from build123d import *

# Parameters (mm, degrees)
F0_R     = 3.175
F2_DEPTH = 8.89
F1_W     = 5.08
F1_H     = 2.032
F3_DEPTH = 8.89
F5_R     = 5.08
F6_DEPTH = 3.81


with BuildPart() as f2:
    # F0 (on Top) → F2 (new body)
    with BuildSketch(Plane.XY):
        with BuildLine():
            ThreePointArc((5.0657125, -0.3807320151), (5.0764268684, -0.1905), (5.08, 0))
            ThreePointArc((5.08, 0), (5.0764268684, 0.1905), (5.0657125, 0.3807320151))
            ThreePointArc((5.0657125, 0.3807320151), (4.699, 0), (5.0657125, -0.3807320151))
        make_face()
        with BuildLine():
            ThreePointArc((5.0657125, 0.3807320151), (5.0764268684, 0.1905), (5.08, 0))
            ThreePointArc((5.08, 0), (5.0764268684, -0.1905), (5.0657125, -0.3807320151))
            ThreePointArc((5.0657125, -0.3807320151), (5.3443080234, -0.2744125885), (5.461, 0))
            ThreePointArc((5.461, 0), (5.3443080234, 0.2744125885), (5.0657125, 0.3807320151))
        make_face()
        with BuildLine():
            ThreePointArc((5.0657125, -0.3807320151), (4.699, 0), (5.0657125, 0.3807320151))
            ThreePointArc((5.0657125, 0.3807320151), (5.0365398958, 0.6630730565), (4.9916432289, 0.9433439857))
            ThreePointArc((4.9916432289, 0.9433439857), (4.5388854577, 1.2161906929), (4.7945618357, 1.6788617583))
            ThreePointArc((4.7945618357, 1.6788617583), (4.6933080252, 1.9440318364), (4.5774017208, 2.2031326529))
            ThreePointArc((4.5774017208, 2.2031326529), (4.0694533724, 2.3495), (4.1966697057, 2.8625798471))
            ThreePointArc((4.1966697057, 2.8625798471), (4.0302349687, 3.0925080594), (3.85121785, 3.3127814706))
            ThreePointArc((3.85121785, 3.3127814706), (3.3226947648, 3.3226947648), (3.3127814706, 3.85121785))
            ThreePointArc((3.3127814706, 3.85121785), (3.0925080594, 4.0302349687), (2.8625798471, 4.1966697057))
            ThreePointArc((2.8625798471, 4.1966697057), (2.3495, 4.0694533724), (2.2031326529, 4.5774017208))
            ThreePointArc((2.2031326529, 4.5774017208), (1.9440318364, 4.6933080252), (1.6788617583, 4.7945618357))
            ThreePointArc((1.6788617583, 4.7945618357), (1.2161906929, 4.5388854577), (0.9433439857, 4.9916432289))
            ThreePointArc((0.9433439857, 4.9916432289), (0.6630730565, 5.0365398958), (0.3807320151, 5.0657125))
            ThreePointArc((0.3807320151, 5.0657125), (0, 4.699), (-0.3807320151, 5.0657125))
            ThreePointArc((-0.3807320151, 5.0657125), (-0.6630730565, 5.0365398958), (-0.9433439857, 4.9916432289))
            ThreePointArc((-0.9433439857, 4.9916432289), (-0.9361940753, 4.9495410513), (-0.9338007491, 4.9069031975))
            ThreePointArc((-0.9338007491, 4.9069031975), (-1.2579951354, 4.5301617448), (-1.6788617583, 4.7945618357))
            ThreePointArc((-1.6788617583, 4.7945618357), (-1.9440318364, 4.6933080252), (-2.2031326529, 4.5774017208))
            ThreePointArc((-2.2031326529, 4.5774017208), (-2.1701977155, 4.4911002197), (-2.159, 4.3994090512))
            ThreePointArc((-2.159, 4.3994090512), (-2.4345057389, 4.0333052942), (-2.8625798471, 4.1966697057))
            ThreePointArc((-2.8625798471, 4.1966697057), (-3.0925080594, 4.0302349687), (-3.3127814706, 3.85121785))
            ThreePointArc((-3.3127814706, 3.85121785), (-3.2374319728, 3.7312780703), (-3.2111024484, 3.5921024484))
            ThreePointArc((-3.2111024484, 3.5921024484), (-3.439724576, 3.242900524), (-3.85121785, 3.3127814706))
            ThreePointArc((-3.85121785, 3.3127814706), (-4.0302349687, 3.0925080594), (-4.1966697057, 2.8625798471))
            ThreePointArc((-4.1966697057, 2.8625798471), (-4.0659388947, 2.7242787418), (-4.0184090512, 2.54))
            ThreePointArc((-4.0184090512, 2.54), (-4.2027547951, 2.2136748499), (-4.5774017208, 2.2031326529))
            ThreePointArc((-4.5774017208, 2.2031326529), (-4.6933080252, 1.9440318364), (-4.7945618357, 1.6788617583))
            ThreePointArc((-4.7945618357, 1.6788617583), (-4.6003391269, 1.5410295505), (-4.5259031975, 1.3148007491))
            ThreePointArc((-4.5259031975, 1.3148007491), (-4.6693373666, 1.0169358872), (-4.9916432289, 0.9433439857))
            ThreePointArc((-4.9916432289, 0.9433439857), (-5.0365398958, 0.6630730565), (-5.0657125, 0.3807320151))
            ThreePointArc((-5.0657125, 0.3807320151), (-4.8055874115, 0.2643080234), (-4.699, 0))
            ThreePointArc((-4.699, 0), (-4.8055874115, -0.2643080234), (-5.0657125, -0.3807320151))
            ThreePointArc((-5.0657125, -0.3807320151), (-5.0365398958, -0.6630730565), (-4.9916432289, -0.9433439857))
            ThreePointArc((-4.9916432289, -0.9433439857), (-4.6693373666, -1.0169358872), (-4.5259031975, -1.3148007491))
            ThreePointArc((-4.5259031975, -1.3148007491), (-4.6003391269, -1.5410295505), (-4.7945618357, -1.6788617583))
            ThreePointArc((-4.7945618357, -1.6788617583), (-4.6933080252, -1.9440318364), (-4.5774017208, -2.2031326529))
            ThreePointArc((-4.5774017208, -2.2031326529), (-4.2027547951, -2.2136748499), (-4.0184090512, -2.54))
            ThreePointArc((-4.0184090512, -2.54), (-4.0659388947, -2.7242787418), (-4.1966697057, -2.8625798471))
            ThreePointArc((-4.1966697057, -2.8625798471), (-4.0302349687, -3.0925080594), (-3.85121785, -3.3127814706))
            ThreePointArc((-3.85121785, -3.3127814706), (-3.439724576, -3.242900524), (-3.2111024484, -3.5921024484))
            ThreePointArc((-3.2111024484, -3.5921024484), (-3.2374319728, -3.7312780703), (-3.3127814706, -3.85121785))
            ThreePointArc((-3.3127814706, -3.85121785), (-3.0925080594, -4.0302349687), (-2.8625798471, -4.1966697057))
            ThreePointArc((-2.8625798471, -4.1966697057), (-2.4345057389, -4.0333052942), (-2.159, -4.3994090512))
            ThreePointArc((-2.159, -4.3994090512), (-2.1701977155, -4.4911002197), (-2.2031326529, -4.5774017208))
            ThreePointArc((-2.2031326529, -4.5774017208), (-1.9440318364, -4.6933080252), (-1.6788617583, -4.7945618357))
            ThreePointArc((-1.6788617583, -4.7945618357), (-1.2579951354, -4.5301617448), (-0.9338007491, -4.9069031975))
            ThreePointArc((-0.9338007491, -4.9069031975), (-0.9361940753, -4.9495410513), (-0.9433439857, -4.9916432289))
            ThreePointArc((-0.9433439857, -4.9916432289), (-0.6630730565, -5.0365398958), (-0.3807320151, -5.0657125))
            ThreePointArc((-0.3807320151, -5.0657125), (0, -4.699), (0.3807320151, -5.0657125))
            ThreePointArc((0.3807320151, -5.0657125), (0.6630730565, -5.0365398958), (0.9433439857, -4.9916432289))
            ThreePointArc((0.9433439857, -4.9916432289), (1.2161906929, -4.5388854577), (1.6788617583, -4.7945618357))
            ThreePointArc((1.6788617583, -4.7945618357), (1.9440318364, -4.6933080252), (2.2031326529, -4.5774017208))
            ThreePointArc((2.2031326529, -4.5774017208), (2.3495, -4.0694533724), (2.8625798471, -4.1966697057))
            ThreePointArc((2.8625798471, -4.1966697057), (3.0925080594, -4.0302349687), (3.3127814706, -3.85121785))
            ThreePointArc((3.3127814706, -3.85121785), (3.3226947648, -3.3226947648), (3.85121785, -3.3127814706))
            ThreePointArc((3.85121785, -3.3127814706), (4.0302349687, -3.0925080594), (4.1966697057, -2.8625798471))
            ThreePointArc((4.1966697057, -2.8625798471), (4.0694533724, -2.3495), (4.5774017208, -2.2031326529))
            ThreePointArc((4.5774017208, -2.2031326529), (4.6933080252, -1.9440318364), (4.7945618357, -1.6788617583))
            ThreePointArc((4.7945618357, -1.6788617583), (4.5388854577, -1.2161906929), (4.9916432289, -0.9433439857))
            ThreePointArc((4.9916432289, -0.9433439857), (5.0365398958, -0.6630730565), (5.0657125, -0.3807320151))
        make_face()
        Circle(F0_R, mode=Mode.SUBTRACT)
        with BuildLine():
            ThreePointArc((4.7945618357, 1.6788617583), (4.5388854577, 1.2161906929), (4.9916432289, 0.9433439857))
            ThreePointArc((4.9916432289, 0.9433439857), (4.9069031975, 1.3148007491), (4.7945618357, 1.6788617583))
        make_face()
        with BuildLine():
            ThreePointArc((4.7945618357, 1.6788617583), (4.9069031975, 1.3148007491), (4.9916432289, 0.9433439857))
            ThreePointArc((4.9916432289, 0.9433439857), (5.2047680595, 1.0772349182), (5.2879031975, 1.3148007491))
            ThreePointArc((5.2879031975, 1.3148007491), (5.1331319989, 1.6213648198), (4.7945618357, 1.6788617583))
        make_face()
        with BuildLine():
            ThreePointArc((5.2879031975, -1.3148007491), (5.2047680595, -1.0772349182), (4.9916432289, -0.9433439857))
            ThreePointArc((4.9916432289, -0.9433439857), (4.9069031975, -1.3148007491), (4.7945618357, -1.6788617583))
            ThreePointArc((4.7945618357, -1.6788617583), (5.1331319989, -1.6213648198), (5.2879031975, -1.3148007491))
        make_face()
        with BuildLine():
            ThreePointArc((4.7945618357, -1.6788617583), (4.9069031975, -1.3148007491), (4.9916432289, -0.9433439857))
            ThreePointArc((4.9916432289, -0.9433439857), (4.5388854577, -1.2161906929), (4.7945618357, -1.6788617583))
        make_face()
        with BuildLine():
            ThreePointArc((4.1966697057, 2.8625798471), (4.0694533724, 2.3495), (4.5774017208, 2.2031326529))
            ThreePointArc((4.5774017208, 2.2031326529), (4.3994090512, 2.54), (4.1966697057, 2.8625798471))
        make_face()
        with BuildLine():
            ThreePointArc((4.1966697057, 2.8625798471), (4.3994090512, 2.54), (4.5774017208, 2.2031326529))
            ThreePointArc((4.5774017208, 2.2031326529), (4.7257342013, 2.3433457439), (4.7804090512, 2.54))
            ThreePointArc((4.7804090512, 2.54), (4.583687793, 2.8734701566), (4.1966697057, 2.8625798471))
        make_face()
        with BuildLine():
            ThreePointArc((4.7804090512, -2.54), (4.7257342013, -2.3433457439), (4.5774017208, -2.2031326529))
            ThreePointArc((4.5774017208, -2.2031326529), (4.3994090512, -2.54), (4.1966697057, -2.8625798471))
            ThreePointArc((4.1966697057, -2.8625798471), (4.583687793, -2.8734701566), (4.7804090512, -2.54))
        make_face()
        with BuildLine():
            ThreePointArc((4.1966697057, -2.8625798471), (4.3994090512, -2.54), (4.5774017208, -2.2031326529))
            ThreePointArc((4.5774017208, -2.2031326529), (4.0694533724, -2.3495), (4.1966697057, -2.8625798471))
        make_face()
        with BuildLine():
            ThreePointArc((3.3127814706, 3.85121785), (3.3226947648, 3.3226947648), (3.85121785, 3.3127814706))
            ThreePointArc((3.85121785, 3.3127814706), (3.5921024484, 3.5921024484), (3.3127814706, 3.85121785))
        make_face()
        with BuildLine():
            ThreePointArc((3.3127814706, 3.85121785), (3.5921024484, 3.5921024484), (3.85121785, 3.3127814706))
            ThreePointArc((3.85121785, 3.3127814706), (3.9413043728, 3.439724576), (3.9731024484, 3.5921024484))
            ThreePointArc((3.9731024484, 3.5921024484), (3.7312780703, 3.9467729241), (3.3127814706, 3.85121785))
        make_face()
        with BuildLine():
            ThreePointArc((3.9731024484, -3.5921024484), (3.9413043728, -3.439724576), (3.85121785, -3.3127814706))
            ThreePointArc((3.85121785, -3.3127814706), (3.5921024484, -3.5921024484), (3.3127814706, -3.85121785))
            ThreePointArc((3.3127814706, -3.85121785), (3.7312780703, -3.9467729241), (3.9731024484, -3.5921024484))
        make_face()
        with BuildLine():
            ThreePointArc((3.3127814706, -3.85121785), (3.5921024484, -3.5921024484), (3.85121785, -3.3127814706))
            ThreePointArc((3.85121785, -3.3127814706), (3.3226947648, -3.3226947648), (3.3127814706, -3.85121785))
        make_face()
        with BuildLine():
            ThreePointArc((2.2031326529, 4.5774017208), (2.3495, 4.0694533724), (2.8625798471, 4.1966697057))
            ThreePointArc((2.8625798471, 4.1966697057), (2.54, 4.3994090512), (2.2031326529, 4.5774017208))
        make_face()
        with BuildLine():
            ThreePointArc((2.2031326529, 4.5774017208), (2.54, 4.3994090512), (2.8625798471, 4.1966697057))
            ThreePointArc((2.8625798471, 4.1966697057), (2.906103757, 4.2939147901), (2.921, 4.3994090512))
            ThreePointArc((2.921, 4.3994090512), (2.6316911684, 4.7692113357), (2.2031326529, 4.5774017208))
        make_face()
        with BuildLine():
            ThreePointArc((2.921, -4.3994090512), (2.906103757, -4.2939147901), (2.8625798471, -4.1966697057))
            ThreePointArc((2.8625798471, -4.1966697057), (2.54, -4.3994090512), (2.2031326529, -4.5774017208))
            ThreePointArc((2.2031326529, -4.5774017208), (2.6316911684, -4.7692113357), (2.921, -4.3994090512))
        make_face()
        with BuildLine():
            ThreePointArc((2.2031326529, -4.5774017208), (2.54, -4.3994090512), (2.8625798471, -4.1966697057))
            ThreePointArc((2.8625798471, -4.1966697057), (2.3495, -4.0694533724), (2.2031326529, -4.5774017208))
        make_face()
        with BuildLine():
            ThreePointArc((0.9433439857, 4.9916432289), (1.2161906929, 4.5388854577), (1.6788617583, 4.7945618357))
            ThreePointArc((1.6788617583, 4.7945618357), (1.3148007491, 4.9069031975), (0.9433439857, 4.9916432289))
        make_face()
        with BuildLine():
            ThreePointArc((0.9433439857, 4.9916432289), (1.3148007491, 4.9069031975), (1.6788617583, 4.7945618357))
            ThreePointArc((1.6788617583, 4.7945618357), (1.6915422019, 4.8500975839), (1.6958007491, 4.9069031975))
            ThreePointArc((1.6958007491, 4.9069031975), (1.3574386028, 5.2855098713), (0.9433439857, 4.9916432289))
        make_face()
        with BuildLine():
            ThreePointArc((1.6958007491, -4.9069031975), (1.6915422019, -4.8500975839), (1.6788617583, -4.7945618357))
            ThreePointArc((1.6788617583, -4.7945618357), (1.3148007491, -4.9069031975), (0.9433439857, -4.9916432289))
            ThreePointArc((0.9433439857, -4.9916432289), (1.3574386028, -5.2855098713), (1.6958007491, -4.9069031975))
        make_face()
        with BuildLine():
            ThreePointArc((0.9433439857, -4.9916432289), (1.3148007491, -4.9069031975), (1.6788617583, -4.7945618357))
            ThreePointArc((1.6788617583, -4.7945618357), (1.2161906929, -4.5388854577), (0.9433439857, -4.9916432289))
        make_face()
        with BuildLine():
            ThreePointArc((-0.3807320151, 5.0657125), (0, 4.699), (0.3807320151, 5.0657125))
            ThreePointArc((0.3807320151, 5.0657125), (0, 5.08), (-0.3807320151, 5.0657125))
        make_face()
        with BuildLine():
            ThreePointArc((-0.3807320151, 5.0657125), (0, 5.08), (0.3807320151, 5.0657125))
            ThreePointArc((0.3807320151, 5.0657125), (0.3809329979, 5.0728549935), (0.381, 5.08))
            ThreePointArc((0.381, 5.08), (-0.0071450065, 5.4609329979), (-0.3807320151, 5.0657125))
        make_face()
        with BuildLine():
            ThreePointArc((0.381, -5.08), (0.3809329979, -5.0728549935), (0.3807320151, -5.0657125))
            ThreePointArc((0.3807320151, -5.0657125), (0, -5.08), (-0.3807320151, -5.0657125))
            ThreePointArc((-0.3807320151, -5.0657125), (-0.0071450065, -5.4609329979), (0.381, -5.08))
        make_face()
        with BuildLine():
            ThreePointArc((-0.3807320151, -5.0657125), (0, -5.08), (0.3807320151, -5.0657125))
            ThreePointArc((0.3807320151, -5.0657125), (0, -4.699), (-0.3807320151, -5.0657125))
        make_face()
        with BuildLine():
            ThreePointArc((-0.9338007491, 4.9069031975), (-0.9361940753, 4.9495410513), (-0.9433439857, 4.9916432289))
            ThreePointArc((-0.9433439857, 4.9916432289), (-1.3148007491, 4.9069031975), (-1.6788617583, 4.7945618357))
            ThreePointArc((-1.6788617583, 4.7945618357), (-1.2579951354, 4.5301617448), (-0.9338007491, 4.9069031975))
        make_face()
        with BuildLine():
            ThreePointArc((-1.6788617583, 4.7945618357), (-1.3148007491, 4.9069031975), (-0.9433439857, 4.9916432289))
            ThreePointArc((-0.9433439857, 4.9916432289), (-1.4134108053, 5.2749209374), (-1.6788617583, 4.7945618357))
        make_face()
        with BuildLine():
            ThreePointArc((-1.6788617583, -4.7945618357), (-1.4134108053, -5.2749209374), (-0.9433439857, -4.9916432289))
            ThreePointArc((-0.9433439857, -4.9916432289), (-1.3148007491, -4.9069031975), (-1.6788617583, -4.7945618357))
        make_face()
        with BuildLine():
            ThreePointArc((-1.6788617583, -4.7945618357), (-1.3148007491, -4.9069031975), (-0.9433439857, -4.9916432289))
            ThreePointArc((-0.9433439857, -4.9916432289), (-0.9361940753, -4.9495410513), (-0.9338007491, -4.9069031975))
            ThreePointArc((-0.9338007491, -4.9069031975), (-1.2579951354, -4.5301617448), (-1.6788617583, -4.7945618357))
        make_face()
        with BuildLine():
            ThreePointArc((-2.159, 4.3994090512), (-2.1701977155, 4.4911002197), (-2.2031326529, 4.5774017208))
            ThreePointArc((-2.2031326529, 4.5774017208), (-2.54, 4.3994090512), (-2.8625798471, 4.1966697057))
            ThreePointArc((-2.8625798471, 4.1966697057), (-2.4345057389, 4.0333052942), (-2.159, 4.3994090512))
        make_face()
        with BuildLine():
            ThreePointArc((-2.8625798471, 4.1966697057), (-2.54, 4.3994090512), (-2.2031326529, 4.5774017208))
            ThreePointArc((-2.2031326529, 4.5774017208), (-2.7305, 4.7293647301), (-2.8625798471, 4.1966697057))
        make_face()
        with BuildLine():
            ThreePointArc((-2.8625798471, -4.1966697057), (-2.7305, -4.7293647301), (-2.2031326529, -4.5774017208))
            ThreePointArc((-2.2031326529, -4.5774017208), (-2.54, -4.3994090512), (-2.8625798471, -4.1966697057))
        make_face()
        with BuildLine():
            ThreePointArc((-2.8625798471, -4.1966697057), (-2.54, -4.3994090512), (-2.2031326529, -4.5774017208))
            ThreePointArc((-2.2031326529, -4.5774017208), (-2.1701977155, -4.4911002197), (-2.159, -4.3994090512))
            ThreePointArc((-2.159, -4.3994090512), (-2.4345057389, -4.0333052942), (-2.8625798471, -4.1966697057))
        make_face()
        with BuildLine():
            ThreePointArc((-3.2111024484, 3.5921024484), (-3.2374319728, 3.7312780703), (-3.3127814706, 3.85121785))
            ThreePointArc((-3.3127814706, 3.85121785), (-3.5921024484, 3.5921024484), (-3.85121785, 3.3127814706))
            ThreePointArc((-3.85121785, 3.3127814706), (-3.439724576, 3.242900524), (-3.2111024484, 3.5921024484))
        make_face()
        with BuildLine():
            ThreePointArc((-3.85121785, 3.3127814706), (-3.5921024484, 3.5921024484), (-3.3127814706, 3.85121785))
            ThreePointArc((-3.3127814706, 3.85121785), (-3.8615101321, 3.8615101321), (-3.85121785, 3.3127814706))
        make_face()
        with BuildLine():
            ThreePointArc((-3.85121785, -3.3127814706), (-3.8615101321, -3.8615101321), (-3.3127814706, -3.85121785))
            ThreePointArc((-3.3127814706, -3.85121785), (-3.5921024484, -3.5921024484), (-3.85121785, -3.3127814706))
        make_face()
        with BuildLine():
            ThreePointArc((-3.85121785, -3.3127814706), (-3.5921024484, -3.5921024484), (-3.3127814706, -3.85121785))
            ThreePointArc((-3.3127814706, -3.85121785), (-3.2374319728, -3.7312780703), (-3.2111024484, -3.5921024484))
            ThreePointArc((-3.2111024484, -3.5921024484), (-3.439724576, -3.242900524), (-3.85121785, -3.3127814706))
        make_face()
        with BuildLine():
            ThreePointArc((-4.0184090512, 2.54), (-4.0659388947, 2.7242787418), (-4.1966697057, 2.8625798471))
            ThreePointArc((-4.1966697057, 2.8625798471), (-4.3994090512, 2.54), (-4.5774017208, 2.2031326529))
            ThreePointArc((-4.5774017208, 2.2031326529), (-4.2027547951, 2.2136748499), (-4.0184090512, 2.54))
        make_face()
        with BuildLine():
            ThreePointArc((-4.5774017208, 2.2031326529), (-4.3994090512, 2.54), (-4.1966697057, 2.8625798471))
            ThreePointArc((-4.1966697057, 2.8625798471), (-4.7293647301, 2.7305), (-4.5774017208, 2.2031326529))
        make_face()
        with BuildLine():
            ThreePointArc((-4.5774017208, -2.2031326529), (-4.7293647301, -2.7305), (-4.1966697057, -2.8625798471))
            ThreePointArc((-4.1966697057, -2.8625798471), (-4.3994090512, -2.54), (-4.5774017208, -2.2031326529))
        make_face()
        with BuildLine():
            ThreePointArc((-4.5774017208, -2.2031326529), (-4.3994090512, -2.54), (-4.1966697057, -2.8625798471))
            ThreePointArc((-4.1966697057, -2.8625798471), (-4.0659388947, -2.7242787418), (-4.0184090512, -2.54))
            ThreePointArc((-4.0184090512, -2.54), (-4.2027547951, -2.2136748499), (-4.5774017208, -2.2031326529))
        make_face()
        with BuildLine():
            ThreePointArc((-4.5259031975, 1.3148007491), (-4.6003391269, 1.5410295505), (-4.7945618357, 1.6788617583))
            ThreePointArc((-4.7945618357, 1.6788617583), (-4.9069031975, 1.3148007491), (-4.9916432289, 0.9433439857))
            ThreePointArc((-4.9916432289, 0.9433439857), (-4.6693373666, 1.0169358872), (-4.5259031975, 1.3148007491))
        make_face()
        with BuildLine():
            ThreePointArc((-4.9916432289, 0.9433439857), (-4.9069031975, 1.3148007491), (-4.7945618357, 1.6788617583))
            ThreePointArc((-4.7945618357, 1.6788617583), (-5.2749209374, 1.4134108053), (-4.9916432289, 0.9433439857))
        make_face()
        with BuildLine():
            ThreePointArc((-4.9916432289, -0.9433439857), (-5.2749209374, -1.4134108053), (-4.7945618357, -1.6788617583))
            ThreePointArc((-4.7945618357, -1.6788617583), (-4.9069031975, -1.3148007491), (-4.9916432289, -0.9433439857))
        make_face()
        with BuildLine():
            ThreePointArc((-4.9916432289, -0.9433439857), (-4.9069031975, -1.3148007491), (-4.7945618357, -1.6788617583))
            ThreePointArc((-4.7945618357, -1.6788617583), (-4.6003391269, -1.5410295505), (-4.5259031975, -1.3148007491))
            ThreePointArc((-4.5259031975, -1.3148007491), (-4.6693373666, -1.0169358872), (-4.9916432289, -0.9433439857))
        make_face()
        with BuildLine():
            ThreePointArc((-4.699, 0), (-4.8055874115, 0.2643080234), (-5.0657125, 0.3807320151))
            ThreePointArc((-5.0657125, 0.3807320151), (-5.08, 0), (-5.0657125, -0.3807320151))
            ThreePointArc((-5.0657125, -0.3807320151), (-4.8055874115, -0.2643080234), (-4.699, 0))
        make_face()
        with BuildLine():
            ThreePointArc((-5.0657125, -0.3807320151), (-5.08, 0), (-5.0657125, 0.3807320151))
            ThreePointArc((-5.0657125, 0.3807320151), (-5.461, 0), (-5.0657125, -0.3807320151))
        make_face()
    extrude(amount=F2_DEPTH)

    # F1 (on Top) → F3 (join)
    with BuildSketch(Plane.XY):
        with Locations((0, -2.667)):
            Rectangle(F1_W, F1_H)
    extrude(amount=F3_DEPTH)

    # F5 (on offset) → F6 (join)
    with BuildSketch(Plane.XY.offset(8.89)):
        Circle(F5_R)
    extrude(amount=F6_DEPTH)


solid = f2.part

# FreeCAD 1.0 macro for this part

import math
import FreeCAD as App
import Part
import Sketcher
Q = App.Units.Quantity

doc = App.newDocument("Part")
params = doc.addObject("Spreadsheet::Sheet", "Params")
for row, (alias, value) in enumerate([
    ("sketch1_radius", "0.2 in"),
    ("sketch1_diameter", "0.25 in"),
    ("sketch1_radius2", "0.015 in"),
    ("pad1_length", "0.35 in"),
    ("sketch2_width", "0.2 in"),
    ("sketch2_height", "0.08 in"),
    ("pad2_length", "0.35 in"),
    ("sketch3_diameter", "0.4 in"),
    ("pad3_length", "0.15 in"),
], start=1):
    params.set(f"A{row}", alias)
    params.set(f"B{row}", "=" + value)
    params.setAlias(f"B{row}", alias)

body = doc.addObject("PartDesign::Body", "Body")

# Sketch on XY plane
sketch1 = body.newObject("Sketcher::SketchObject", "Sketch")
sketch1.AttachmentSupport = (doc.getObject("XY_Plane"), [""])
sketch1.MapMode = "FlatFace"
sketch1.addGeometry([
    Part.ArcOfCircle(Part.Circle(App.Vector(5.08, 0, 0), App.Vector(0, 0, 1), 0.381), math.radians(-92.149096), math.radians(0)),  # 0
    Part.ArcOfCircle(Part.Circle(App.Vector(5.08, 0, 0), App.Vector(0, 0, 1), 0.381), math.radians(0), math.radians(92.149096)),  # 1
    Part.ArcOfCircle(Part.Circle(App.Vector(0, 0, 0), App.Vector(0, 0, 1), 5.08), math.radians(4.298191), math.radians(10.701809)),  # 2
    Part.ArcOfCircle(Part.Circle(App.Vector(4.906903, 1.314801, 0), App.Vector(0, 0, 1), 0.381), math.radians(-77.149096), math.radians(0)),  # 3
    Part.ArcOfCircle(Part.Circle(App.Vector(4.906903, 1.314801, 0), App.Vector(0, 0, 1), 0.381), math.radians(0), math.radians(107.149096)),  # 4
    Part.ArcOfCircle(Part.Circle(App.Vector(0, 0, 0), App.Vector(0, 0, 1), 5.08), math.radians(19.298191), math.radians(25.701809)),  # 5
    Part.ArcOfCircle(Part.Circle(App.Vector(4.399409, 2.54, 0), App.Vector(0, 0, 1), 0.381), math.radians(-62.149096), math.radians(0)),  # 6
    Part.ArcOfCircle(Part.Circle(App.Vector(4.399409, 2.54, 0), App.Vector(0, 0, 1), 0.381), math.radians(0), math.radians(122.149096)),  # 7
    Part.ArcOfCircle(Part.Circle(App.Vector(0, 0, 0), App.Vector(0, 0, 1), 5.08), math.radians(34.298191), math.radians(40.701809)),  # 8
    Part.ArcOfCircle(Part.Circle(App.Vector(3.592102, 3.592102, 0), App.Vector(0, 0, 1), 0.381), math.radians(-47.149096), math.radians(0)),  # 9
    Part.ArcOfCircle(Part.Circle(App.Vector(3.592102, 3.592102, 0), App.Vector(0, 0, 1), 0.381), math.radians(0), math.radians(137.149096)),  # 10
    Part.ArcOfCircle(Part.Circle(App.Vector(0, 0, 0), App.Vector(0, 0, 1), 5.08), math.radians(49.298191), math.radians(55.701809)),  # 11
    Part.ArcOfCircle(Part.Circle(App.Vector(2.54, 4.399409, 0), App.Vector(0, 0, 1), 0.381), math.radians(-32.149096), math.radians(0)),  # 12
    Part.ArcOfCircle(Part.Circle(App.Vector(2.54, 4.399409, 0), App.Vector(0, 0, 1), 0.381), math.radians(0), math.radians(152.149096)),  # 13
    Part.ArcOfCircle(Part.Circle(App.Vector(0, 0, 0), App.Vector(0, 0, 1), 5.08), math.radians(64.298191), math.radians(70.701809)),  # 14
    Part.ArcOfCircle(Part.Circle(App.Vector(1.314801, 4.906903, 0), App.Vector(0, 0, 1), 0.381), math.radians(-17.149096), math.radians(0)),  # 15
    Part.ArcOfCircle(Part.Circle(App.Vector(1.314801, 4.906903, 0), App.Vector(0, 0, 1), 0.381), math.radians(0), math.radians(167.149096)),  # 16
    Part.ArcOfCircle(Part.Circle(App.Vector(0, 0, 0), App.Vector(0, 0, 1), 5.08), math.radians(79.298191), math.radians(85.701809)),  # 17
    Part.ArcOfCircle(Part.Circle(App.Vector(0, 5.08, 0), App.Vector(0, 0, 1), 0.381), math.radians(-2.149096), math.radians(0)),  # 18
    Part.ArcOfCircle(Part.Circle(App.Vector(0, 5.08, 0), App.Vector(0, 0, 1), 0.381), math.radians(0), math.radians(182.149096)),  # 19
    Part.ArcOfCircle(Part.Circle(App.Vector(0, 0, 0), App.Vector(0, 0, 1), 5.08), math.radians(94.298191), math.radians(100.701809)),  # 20
    Part.ArcOfCircle(Part.Circle(App.Vector(-1.314801, 4.906903, 0), App.Vector(0, 0, 1), 0.381), math.radians(12.850904), math.radians(197.149096)),  # 21
    Part.ArcOfCircle(Part.Circle(App.Vector(0, 0, 0), App.Vector(0, 0, 1), 5.08), math.radians(109.298191), math.radians(115.701809)),  # 22
    Part.ArcOfCircle(Part.Circle(App.Vector(-2.54, 4.399409, 0), App.Vector(0, 0, 1), 0.381), math.radians(27.850904), math.radians(212.149096)),  # 23
    Part.ArcOfCircle(Part.Circle(App.Vector(0, 0, 0), App.Vector(0, 0, 1), 5.08), math.radians(124.298191), math.radians(130.701809)),  # 24
    Part.ArcOfCircle(Part.Circle(App.Vector(-3.592102, 3.592102, 0), App.Vector(0, 0, 1), 0.381), math.radians(42.850905), math.radians(227.149095)),  # 25
    Part.ArcOfCircle(Part.Circle(App.Vector(0, 0, 0), App.Vector(0, 0, 1), 5.08), math.radians(139.298191), math.radians(145.701809)),  # 26
    Part.ArcOfCircle(Part.Circle(App.Vector(-4.399409, 2.54, 0), App.Vector(0, 0, 1), 0.381), math.radians(57.850904), math.radians(242.149096)),  # 27
    Part.ArcOfCircle(Part.Circle(App.Vector(0, 0, 0), App.Vector(0, 0, 1), 5.08), math.radians(154.298191), math.radians(160.701809)),  # 28
    Part.ArcOfCircle(Part.Circle(App.Vector(-4.906903, 1.314801, 0), App.Vector(0, 0, 1), 0.381), math.radians(72.850904), math.radians(257.149096)),  # 29
    Part.ArcOfCircle(Part.Circle(App.Vector(0, 0, 0), App.Vector(0, 0, 1), 5.08), math.radians(169.298191), math.radians(175.701809)),  # 30
    Part.ArcOfCircle(Part.Circle(App.Vector(-5.08, 0, 0), App.Vector(0, 0, 1), 0.381), math.radians(87.850904), math.radians(272.149096)),  # 31
    Part.ArcOfCircle(Part.Circle(App.Vector(0, 0, 0), App.Vector(0, 0, 1), 5.08), math.radians(-175.701809), math.radians(-169.298191)),  # 32
    Part.ArcOfCircle(Part.Circle(App.Vector(-4.906903, -1.314801, 0), App.Vector(0, 0, 1), 0.381), math.radians(102.850904), math.radians(287.149096)),  # 33
    Part.ArcOfCircle(Part.Circle(App.Vector(0, 0, 0), App.Vector(0, 0, 1), 5.08), math.radians(-160.701809), math.radians(-154.298191)),  # 34
    Part.ArcOfCircle(Part.Circle(App.Vector(-4.399409, -2.54, 0), App.Vector(0, 0, 1), 0.381), math.radians(117.850904), math.radians(302.149096)),  # 35
    Part.ArcOfCircle(Part.Circle(App.Vector(0, 0, 0), App.Vector(0, 0, 1), 5.08), math.radians(-145.701809), math.radians(-139.298191)),  # 36
    Part.ArcOfCircle(Part.Circle(App.Vector(-3.592102, -3.592102, 0), App.Vector(0, 0, 1), 0.381), math.radians(132.850905), math.radians(317.149095)),  # 37
    Part.ArcOfCircle(Part.Circle(App.Vector(0, 0, 0), App.Vector(0, 0, 1), 5.08), math.radians(-130.701809), math.radians(-124.298191)),  # 38
    Part.ArcOfCircle(Part.Circle(App.Vector(-2.54, -4.399409, 0), App.Vector(0, 0, 1), 0.381), math.radians(147.850904), math.radians(332.149096)),  # 39
    Part.ArcOfCircle(Part.Circle(App.Vector(0, 0, 0), App.Vector(0, 0, 1), 5.08), math.radians(-115.701809), math.radians(-109.298191)),  # 40
    Part.ArcOfCircle(Part.Circle(App.Vector(-1.314801, -4.906903, 0), App.Vector(0, 0, 1), 0.381), math.radians(162.850904), math.radians(347.149096)),  # 41
    Part.ArcOfCircle(Part.Circle(App.Vector(0, 0, 0), App.Vector(0, 0, 1), 5.08), math.radians(-100.701809), math.radians(-94.298191)),  # 42
    Part.ArcOfCircle(Part.Circle(App.Vector(0, -5.08, 0), App.Vector(0, 0, 1), 0.381), math.radians(177.850904), math.radians(360)),  # 43
    Part.ArcOfCircle(Part.Circle(App.Vector(0, -5.08, 0), App.Vector(0, 0, 1), 0.381), math.radians(0), math.radians(2.149096)),  # 44
    Part.ArcOfCircle(Part.Circle(App.Vector(0, 0, 0), App.Vector(0, 0, 1), 5.08), math.radians(-85.701809), math.radians(-79.298191)),  # 45
    Part.ArcOfCircle(Part.Circle(App.Vector(1.314801, -4.906903, 0), App.Vector(0, 0, 1), 0.381), math.radians(-167.149096), math.radians(0)),  # 46
    Part.ArcOfCircle(Part.Circle(App.Vector(1.314801, -4.906903, 0), App.Vector(0, 0, 1), 0.381), math.radians(0), math.radians(17.149096)),  # 47
    Part.ArcOfCircle(Part.Circle(App.Vector(0, 0, 0), App.Vector(0, 0, 1), 5.08), math.radians(-70.701809), math.radians(-64.298191)),  # 48
    Part.ArcOfCircle(Part.Circle(App.Vector(2.54, -4.399409, 0), App.Vector(0, 0, 1), 0.381), math.radians(-152.149096), math.radians(0)),  # 49
    Part.ArcOfCircle(Part.Circle(App.Vector(2.54, -4.399409, 0), App.Vector(0, 0, 1), 0.381), math.radians(0), math.radians(32.149096)),  # 50
    Part.ArcOfCircle(Part.Circle(App.Vector(0, 0, 0), App.Vector(0, 0, 1), 5.08), math.radians(-55.701809), math.radians(-49.298191)),  # 51
    Part.ArcOfCircle(Part.Circle(App.Vector(3.592102, -3.592102, 0), App.Vector(0, 0, 1), 0.381), math.radians(-137.149096), math.radians(0)),  # 52
    Part.ArcOfCircle(Part.Circle(App.Vector(3.592102, -3.592102, 0), App.Vector(0, 0, 1), 0.381), math.radians(0), math.radians(47.149096)),  # 53
    Part.ArcOfCircle(Part.Circle(App.Vector(0, 0, 0), App.Vector(0, 0, 1), 5.08), math.radians(-40.701809), math.radians(-34.298191)),  # 54
    Part.ArcOfCircle(Part.Circle(App.Vector(4.399409, -2.54, 0), App.Vector(0, 0, 1), 0.381), math.radians(-122.149096), math.radians(0)),  # 55
    Part.ArcOfCircle(Part.Circle(App.Vector(4.399409, -2.54, 0), App.Vector(0, 0, 1), 0.381), math.radians(0), math.radians(62.149096)),  # 56
    Part.ArcOfCircle(Part.Circle(App.Vector(0, 0, 0), App.Vector(0, 0, 1), 5.08), math.radians(-25.701809), math.radians(-19.298191)),  # 57
    Part.ArcOfCircle(Part.Circle(App.Vector(4.906903, -1.314801, 0), App.Vector(0, 0, 1), 0.381), math.radians(-107.149096), math.radians(0)),  # 58
    Part.ArcOfCircle(Part.Circle(App.Vector(4.906903, -1.314801, 0), App.Vector(0, 0, 1), 0.381), math.radians(0), math.radians(77.149096)),  # 59
    Part.ArcOfCircle(Part.Circle(App.Vector(0, 0, 0), App.Vector(0, 0, 1), 5.08), math.radians(-10.701809), math.radians(-4.298191)),  # 60
    Part.Circle(App.Vector(0, 0, 0), App.Vector(0, 0, 1), 3.175),  # 61
], False)
sketch1.addConstraint([
    Sketcher.Constraint("Tangent", 0, 2, 1, 1),
    Sketcher.Constraint("Coincident", 1, 2, 2, 1),
    Sketcher.Constraint("Coincident", 2, 2, 3, 1),
    Sketcher.Constraint("Tangent", 3, 2, 4, 1),
    Sketcher.Constraint("Coincident", 4, 2, 5, 1),
    Sketcher.Constraint("Coincident", 5, 2, 6, 1),
    Sketcher.Constraint("Tangent", 6, 2, 7, 1),
    Sketcher.Constraint("Coincident", 7, 2, 8, 1),
    Sketcher.Constraint("Coincident", 8, 2, 9, 1),
    Sketcher.Constraint("Tangent", 9, 2, 10, 1),
    Sketcher.Constraint("Coincident", 10, 2, 11, 1),
    Sketcher.Constraint("Coincident", 11, 2, 12, 1),
    Sketcher.Constraint("Tangent", 12, 2, 13, 1),
    Sketcher.Constraint("Coincident", 13, 2, 14, 1),
    Sketcher.Constraint("Coincident", 14, 2, 15, 1),
    Sketcher.Constraint("Tangent", 15, 2, 16, 1),
    Sketcher.Constraint("Coincident", 16, 2, 17, 1),
    Sketcher.Constraint("Coincident", 17, 2, 18, 1),
    Sketcher.Constraint("Tangent", 18, 2, 19, 1),
    Sketcher.Constraint("Coincident", 19, 2, 20, 1),
    Sketcher.Constraint("Coincident", 20, 2, 21, 1),
    Sketcher.Constraint("Coincident", 21, 2, 22, 1),
    Sketcher.Constraint("Coincident", 22, 2, 23, 1),
    Sketcher.Constraint("Coincident", 23, 2, 24, 1),
    Sketcher.Constraint("Coincident", 24, 2, 25, 1),
    Sketcher.Constraint("Coincident", 25, 2, 26, 1),
    Sketcher.Constraint("Coincident", 26, 2, 27, 1),
    Sketcher.Constraint("Coincident", 27, 2, 28, 1),
    Sketcher.Constraint("Coincident", 28, 2, 29, 1),
    Sketcher.Constraint("Coincident", 29, 2, 30, 1),
    Sketcher.Constraint("Coincident", 30, 2, 31, 1),
    Sketcher.Constraint("Coincident", 31, 2, 32, 1),
    Sketcher.Constraint("Coincident", 32, 2, 33, 1),
    Sketcher.Constraint("Coincident", 33, 2, 34, 1),
    Sketcher.Constraint("Coincident", 34, 2, 35, 1),
    Sketcher.Constraint("Coincident", 35, 2, 36, 1),
    Sketcher.Constraint("Coincident", 36, 2, 37, 1),
    Sketcher.Constraint("Coincident", 37, 2, 38, 1),
    Sketcher.Constraint("Coincident", 38, 2, 39, 1),
    Sketcher.Constraint("Coincident", 39, 2, 40, 1),
    Sketcher.Constraint("Coincident", 40, 2, 41, 1),
    Sketcher.Constraint("Coincident", 41, 2, 42, 1),
    Sketcher.Constraint("Coincident", 42, 2, 43, 1),
    Sketcher.Constraint("Tangent", 43, 2, 44, 1),
    Sketcher.Constraint("Coincident", 44, 2, 45, 1),
    Sketcher.Constraint("Coincident", 45, 2, 46, 1),
    Sketcher.Constraint("Tangent", 46, 2, 47, 1),
    Sketcher.Constraint("Coincident", 47, 2, 48, 1),
    Sketcher.Constraint("Coincident", 48, 2, 49, 1),
    Sketcher.Constraint("Tangent", 49, 2, 50, 1),
    Sketcher.Constraint("Coincident", 50, 2, 51, 1),
    Sketcher.Constraint("Coincident", 51, 2, 52, 1),
    Sketcher.Constraint("Tangent", 52, 2, 53, 1),
    Sketcher.Constraint("Coincident", 53, 2, 54, 1),
    Sketcher.Constraint("Coincident", 54, 2, 55, 1),
    Sketcher.Constraint("Tangent", 55, 2, 56, 1),
    Sketcher.Constraint("Coincident", 56, 2, 57, 1),
    Sketcher.Constraint("Coincident", 57, 2, 58, 1),
    Sketcher.Constraint("Tangent", 58, 2, 59, 1),
    Sketcher.Constraint("Coincident", 59, 2, 60, 1),
    Sketcher.Constraint("Coincident", 60, 2, 0, 1),
    Sketcher.Constraint("Coincident", 2, 3, -1, 1),
    Sketcher.Constraint("Coincident", 5, 3, -1, 1),
    Sketcher.Constraint("Coincident", 8, 3, -1, 1),
    Sketcher.Constraint("Coincident", 11, 3, -1, 1),
    Sketcher.Constraint("Coincident", 14, 3, -1, 1),
    Sketcher.Constraint("Coincident", 17, 3, -1, 1),
    Sketcher.Constraint("Coincident", 20, 3, -1, 1),
    Sketcher.Constraint("Coincident", 22, 3, -1, 1),
    Sketcher.Constraint("Coincident", 24, 3, -1, 1),
    Sketcher.Constraint("Coincident", 26, 3, -1, 1),
    Sketcher.Constraint("Coincident", 28, 3, -1, 1),
    Sketcher.Constraint("Coincident", 30, 3, -1, 1),
    Sketcher.Constraint("Coincident", 32, 3, -1, 1),
    Sketcher.Constraint("Coincident", 34, 3, -1, 1),
    Sketcher.Constraint("Coincident", 36, 3, -1, 1),
    Sketcher.Constraint("Coincident", 38, 3, -1, 1),
    Sketcher.Constraint("Coincident", 40, 3, -1, 1),
    Sketcher.Constraint("Coincident", 42, 3, -1, 1),
    Sketcher.Constraint("Coincident", 45, 3, -1, 1),
    Sketcher.Constraint("Coincident", 48, 3, -1, 1),
    Sketcher.Constraint("Coincident", 51, 3, -1, 1),
    Sketcher.Constraint("Coincident", 54, 3, -1, 1),
    Sketcher.Constraint("Coincident", 57, 3, -1, 1),
    Sketcher.Constraint("Coincident", 60, 3, -1, 1),
    Sketcher.Constraint("Coincident", 61, 3, -1, 1),
    Sketcher.Constraint("Equal", 0, 1),
    Sketcher.Constraint("Equal", 1, 3),
    Sketcher.Constraint("Equal", 3, 4),
    Sketcher.Constraint("Equal", 2, 5),
    Sketcher.Constraint("Equal", 4, 6),
    Sketcher.Constraint("Equal", 6, 7),
    Sketcher.Constraint("Equal", 5, 8),
    Sketcher.Constraint("Equal", 7, 9),
    Sketcher.Constraint("Equal", 9, 10),
    Sketcher.Constraint("Equal", 8, 11),
    Sketcher.Constraint("Equal", 10, 12),
    Sketcher.Constraint("Equal", 12, 13),
    Sketcher.Constraint("Equal", 11, 14),
    Sketcher.Constraint("Equal", 13, 15),
    Sketcher.Constraint("Equal", 15, 16),
    Sketcher.Constraint("Equal", 14, 17),
    Sketcher.Constraint("Equal", 16, 18),
    Sketcher.Constraint("Equal", 18, 19),
    Sketcher.Constraint("Equal", 17, 20),
    Sketcher.Constraint("Equal", 19, 21),
    Sketcher.Constraint("Equal", 20, 22),
    Sketcher.Constraint("Equal", 21, 23),
    Sketcher.Constraint("Equal", 22, 24),
    Sketcher.Constraint("Equal", 23, 25),
    Sketcher.Constraint("Equal", 24, 26),
    Sketcher.Constraint("Equal", 25, 27),
    Sketcher.Constraint("Equal", 26, 28),
    Sketcher.Constraint("Equal", 27, 29),
    Sketcher.Constraint("Equal", 28, 30),
    Sketcher.Constraint("Equal", 29, 31),
    Sketcher.Constraint("Equal", 30, 32),
    Sketcher.Constraint("Equal", 31, 33),
    Sketcher.Constraint("Equal", 32, 34),
    Sketcher.Constraint("Equal", 33, 35),
    Sketcher.Constraint("Equal", 34, 36),
    Sketcher.Constraint("Equal", 35, 37),
    Sketcher.Constraint("Equal", 36, 38),
    Sketcher.Constraint("Equal", 37, 39),
    Sketcher.Constraint("Equal", 38, 40),
    Sketcher.Constraint("Equal", 39, 41),
    Sketcher.Constraint("Equal", 40, 42),
    Sketcher.Constraint("Equal", 41, 43),
    Sketcher.Constraint("Equal", 43, 44),
    Sketcher.Constraint("Equal", 42, 45),
    Sketcher.Constraint("Equal", 44, 46),
    Sketcher.Constraint("Equal", 46, 47),
    Sketcher.Constraint("Equal", 45, 48),
    Sketcher.Constraint("Equal", 47, 49),
    Sketcher.Constraint("Equal", 49, 50),
    Sketcher.Constraint("Equal", 48, 51),
    Sketcher.Constraint("Equal", 50, 52),
    Sketcher.Constraint("Equal", 52, 53),
    Sketcher.Constraint("Equal", 51, 54),
    Sketcher.Constraint("Equal", 53, 55),
    Sketcher.Constraint("Equal", 55, 56),
    Sketcher.Constraint("Equal", 54, 57),
    Sketcher.Constraint("Equal", 56, 58),
    Sketcher.Constraint("Equal", 58, 59),
    Sketcher.Constraint("Equal", 57, 60),
    Sketcher.Constraint("Symmetric", 0, 3, 31, 3, -1, 1),
    Sketcher.Constraint("Symmetric", 3, 3, 33, 3, -1, 1),
    Sketcher.Constraint("Symmetric", 6, 3, 35, 3, -1, 1),
    Sketcher.Constraint("Symmetric", 9, 3, 37, 3, -1, 1),
    Sketcher.Constraint("Symmetric", 12, 3, 39, 3, -1, 1),
    Sketcher.Constraint("Symmetric", 15, 3, 41, 3, -1, 1),
    Sketcher.Constraint("Symmetric", 18, 3, 43, 3, -1, 1),
    Sketcher.Constraint("Symmetric", 21, 3, 46, 3, -1, 1),
    Sketcher.Constraint("Symmetric", 23, 3, 49, 3, -1, 1),
    Sketcher.Constraint("Symmetric", 25, 3, 52, 3, -1, 1),
    Sketcher.Constraint("Symmetric", 27, 3, 55, 3, -1, 1),
    Sketcher.Constraint("Symmetric", 29, 3, 58, 3, -1, 1),
    Sketcher.Constraint("Symmetric", 15, 3, 21, 3, -2),
    Sketcher.Constraint("Symmetric", 12, 3, 23, 3, -2),
    Sketcher.Constraint("Symmetric", 9, 3, 25, 3, -2),
    Sketcher.Constraint("Symmetric", 6, 3, 27, 3, -2),
    Sketcher.Constraint("Symmetric", 3, 3, 29, 3, -2),
    Sketcher.Constraint("Symmetric", 18, 2, 43, 2, -1),
    Sketcher.Constraint("PointOnObject", 0, 3, -1),
    Sketcher.Constraint("PointOnObject", 0, 2, -1),
    Sketcher.Constraint("Horizontal", 29, 3, 3, 2),
    Sketcher.Constraint("Horizontal", 27, 3, 6, 2),
    Sketcher.Constraint("Horizontal", 25, 3, 9, 2),
    Sketcher.Constraint("Horizontal", 23, 3, 12, 2),
    Sketcher.Constraint("Horizontal", 21, 3, 15, 2),
    Sketcher.Constraint("Horizontal", 19, 3, 18, 2),
    Sketcher.Constraint("Horizontal", 47, 3, 46, 2),
    Sketcher.Constraint("Horizontal", 50, 3, 49, 2),
    Sketcher.Constraint("Horizontal", 53, 3, 52, 2),
    Sketcher.Constraint("Horizontal", 56, 3, 55, 2),
    Sketcher.Constraint("Horizontal", 59, 3, 58, 2),
    Sketcher.Constraint("Radius", 2, Q("0.2 in")),
    Sketcher.Constraint("Diameter", 61, Q("0.25 in")),
    Sketcher.Constraint("Radius", 0, Q("0.015 in")),
    Sketcher.Constraint("DistanceX", -1, 1, 0, 3, Q("0.2 in")),
    Sketcher.Constraint("DistanceY", -1, 1, 6, 3, Q("0.1 in")),
    Sketcher.Constraint("DistanceX", -1, 1, 12, 3, Q("0.1 in")),
    Sketcher.Constraint("DistanceY", -1, 1, 18, 3, Q("0.2 in")),
    Sketcher.Constraint("DistanceY", -1, 1, 7, 2, Q("0.1127 in")),
    Sketcher.Constraint("DistanceX", -1, 1, 11, 2, Q("0.1127 in")),
    Sketcher.Constraint("DistanceY", -1, 1, 3, 3, Q("1.314801 mm")),
    Sketcher.Constraint("DistanceX", -1, 1, 15, 3, Q("1.314801 mm")),
    Sketcher.Constraint("DistanceX", -1, 1, 4, 2, Q("4.794562 mm")),
    Sketcher.Constraint("DistanceY", -1, 1, 8, 2, Q("3.312781 mm")),
    Sketcher.Constraint("DistanceX", -1, 1, 10, 2, Q("3.312781 mm")),
    Sketcher.Constraint("DistanceX", -1, 1, 14, 2, Q("1.678862 mm")),
])
sketch1.setExpression("Constraints[176]", "Params.sketch1_radius")
sketch1.setExpression("Constraints[177]", "Params.sketch1_diameter")
sketch1.setExpression("Constraints[178]", "Params.sketch1_radius2")
pad1 = body.newObject("PartDesign::Pad", "Pad")
pad1.Profile = sketch1
pad1.setExpression("Length", "Params.pad1_length")

# Sketch on XY plane
sketch2 = body.newObject("Sketcher::SketchObject", "Sketch001")
sketch2.AttachmentSupport = (doc.getObject("XY_Plane"), [""])
sketch2.MapMode = "FlatFace"
sketch2.addGeometry([
    Part.LineSegment(App.Vector(-2.54, -1.651, 0), App.Vector(-2.54, -3.683, 0)),
    Part.LineSegment(App.Vector(-2.54, -3.683, 0), App.Vector(2.54, -3.683, 0)),
    Part.LineSegment(App.Vector(2.54, -3.683, 0), App.Vector(2.54, -1.651, 0)),
    Part.LineSegment(App.Vector(2.54, -1.651, 0), App.Vector(-2.54, -1.651, 0)),
], False)
sketch2.addConstraint([
    Sketcher.Constraint("Coincident", 0, 2, 1, 1),
    Sketcher.Constraint("Coincident", 1, 2, 2, 1),
    Sketcher.Constraint("Coincident", 2, 2, 3, 1),
    Sketcher.Constraint("Coincident", 3, 2, 0, 1),
    Sketcher.Constraint("Vertical", 0),
    Sketcher.Constraint("Horizontal", 1),
    Sketcher.Constraint("Vertical", 2),
    Sketcher.Constraint("Horizontal", 3),
    Sketcher.Constraint("DistanceX", 1, 1, 1, 2, Q("0.2 in")),
    Sketcher.Constraint("DistanceY", 0, 2, 0, 1, Q("0.08 in")),
    Sketcher.Constraint("DistanceX", 0, 2, -1, 1, Q("0.1 in")),
    Sketcher.Constraint("DistanceY", 0, 2, -1, 1, Q("0.145 in")),
])
sketch2.setExpression("Constraints[8]", "Params.sketch2_width")
sketch2.setExpression("Constraints[9]", "Params.sketch2_height")
pad2 = body.newObject("PartDesign::Pad", "Pad001")
pad2.Profile = sketch2
pad2.setExpression("Length", "Params.pad2_length")

# Sketch on XY plane
sketch3 = body.newObject("Sketcher::SketchObject", "Sketch002")
sketch3.AttachmentSupport = (doc.getObject("XY_Plane"), [""])
sketch3.MapMode = "FlatFace"
sketch3.AttachmentOffset = App.Placement(App.Vector(0, 0, 0.35 * 25.4), App.Rotation())
sketch3.addGeometry(Part.Circle(App.Vector(0, 0, 0), App.Vector(0, 0, 1), 5.08), False)
sketch3.addConstraint([
    Sketcher.Constraint("Coincident", 0, 3, -1, 1),
    Sketcher.Constraint("Diameter", 0, Q("0.4 in")),
])
sketch3.setExpression("Constraints[1]", "Params.sketch3_diameter")
pad3 = body.newObject("PartDesign::Pad", "Pad002")
pad3.Profile = sketch3
pad3.setExpression("Length", "Params.pad3_length")

doc.recompute()
